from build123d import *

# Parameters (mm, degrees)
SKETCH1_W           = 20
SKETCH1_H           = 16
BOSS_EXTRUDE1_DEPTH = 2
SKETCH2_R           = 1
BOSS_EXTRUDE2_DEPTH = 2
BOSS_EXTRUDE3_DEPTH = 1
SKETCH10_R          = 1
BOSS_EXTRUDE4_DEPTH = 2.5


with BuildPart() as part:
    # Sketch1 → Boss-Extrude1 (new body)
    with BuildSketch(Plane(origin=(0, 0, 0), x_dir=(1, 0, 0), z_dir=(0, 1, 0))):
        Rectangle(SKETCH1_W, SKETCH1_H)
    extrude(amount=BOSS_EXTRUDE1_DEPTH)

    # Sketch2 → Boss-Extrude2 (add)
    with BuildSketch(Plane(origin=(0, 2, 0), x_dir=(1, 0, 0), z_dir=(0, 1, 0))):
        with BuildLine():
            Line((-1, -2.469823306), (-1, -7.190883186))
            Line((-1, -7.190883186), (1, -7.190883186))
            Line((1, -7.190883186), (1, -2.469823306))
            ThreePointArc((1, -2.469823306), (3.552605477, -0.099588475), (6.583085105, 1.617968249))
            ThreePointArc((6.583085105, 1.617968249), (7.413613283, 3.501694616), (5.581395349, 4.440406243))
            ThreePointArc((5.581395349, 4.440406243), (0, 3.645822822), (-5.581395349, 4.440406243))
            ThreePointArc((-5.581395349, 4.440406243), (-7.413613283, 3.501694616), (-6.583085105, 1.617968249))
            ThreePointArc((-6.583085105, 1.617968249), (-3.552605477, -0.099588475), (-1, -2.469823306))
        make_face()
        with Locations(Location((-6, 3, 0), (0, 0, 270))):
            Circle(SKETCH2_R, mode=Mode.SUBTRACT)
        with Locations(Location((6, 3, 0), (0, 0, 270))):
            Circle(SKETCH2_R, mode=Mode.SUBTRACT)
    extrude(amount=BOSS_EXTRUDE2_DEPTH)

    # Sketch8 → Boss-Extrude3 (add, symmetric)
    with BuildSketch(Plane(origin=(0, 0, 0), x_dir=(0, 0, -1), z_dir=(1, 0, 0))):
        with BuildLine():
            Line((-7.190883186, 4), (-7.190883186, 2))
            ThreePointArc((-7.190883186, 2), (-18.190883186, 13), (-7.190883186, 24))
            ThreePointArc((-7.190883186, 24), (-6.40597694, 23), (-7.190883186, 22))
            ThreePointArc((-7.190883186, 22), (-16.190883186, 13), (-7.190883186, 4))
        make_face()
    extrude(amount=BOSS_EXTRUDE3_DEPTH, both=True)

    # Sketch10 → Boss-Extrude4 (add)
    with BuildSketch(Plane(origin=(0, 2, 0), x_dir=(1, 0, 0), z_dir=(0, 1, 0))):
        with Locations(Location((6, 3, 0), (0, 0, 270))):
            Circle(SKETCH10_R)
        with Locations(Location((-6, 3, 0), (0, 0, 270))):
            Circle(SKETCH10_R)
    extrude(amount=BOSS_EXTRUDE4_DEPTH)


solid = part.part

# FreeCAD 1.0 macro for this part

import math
import FreeCAD as App
import Part
import Sketcher
from FreeCAD import Vector
Q = App.Units.Quantity

doc = App.newDocument("Part")
body = doc.addObject("PartDesign::Body", "Body")

sketch1 = doc.addObject("Sketcher::SketchObject", "Sketch")
body.addObject(sketch1)
sketch1.AttachmentSupport = (doc.XZ_Plane, [""])
sketch1.MapMode = "FlatFace"
sketch1.addGeometry([
    Part.LineSegment(Vector(-10, -8, 0), Vector(-10, 8, 0)),
    Part.LineSegment(Vector(-10, 8, 0), Vector(10, 8, 0)),
    Part.LineSegment(Vector(10, 8, 0), Vector(10, -8, 0)),
    Part.LineSegment(Vector(10, -8, 0), Vector(-10, -8, 0)),
], False)
sketch1.addConstraint([
    Sketcher.Constraint("Coincident", 0, 2, 1, 1),
    Sketcher.Constraint("Coincident", 1, 2, 2, 1),
    Sketcher.Constraint("Coincident", 2, 2, 3, 1),
    Sketcher.Constraint("Coincident", 3, 2, 0, 1),
    Sketcher.Constraint("Vertical", 0),
    Sketcher.Constraint("Horizontal", 1),
    Sketcher.Constraint("Vertical", 2),
    Sketcher.Constraint("Horizontal", 3),
    Sketcher.Constraint("Symmetric", 0, 2, 2, 2, -1, 1),
    Sketcher.Constraint("DistanceX", 1, 1, 1, 2, Q("20 mm")),
    Sketcher.Constraint("DistanceY", 0, 1, 0, 2, Q("16 mm")),
])
pad1 = doc.addObject("PartDesign::Pad", "Pad")
body.addObject(pad1)
pad1.Profile = sketch1
pad1.Length = 2
pad1.Reversed = True

sketch2 = doc.addObject("Sketcher::SketchObject", "Sketch001")
body.addObject(sketch2)
sketch2.AttachmentSupport = (doc.XZ_Plane, [""])
sketch2.MapMode = "FlatFace"
sketch2.AttachmentOffset = App.Placement(Vector(0, 0, -2), App.Rotation())
sketch2.addGeometry([
    Part.LineSegment(Vector(-1, 2.5, 0), Vector(-1, 7.2, 0)),
    Part.LineSegment(Vector(-1, 7.2, 0), Vector(1, 7.2, 0)),
    Part.LineSegment(Vector(1, 7.2, 0), Vector(1, 2.5, 0)),
    Part.ArcOfCircle(Part.Circle(Vector(12.4, 12.2, 0), Vector(0, 0, 1), 15), math.radians(-140), math.radians(-113)),
    Part.ArcOfCircle(Part.Circle(Vector(6, -3, 0), Vector(0, 0, 1), 1.5), math.radians(-106), math.radians(67)),
    Part.ArcOfCircle(Part.Circle(Vector(0, -23.6, 0), Vector(0, 0, 1), 20), math.radians(74), math.radians(106)),
    Part.ArcOfCircle(Part.Circle(Vector(-6, -3, 0), Vector(0, 0, 1), 1.5), math.radians(113), math.radians(286)),
    Part.ArcOfCircle(Part.Circle(Vector(-12.4, 12.2, 0), Vector(0, 0, 1), 15), math.radians(-67), math.radians(-40)),
    Part.Circle(Vector(-6, -3, 0), Vector(0, 0, 1), 1),
    Part.Circle(Vector(6, -3, 0), Vector(0, 0, 1), 1),
], False)
sketch2.addConstraint([
    Sketcher.Constraint("Coincident", 0, 2, 1, 1),
    Sketcher.Constraint("Coincident", 1, 2, 2, 1),
    Sketcher.Constraint("Coincident", 2, 2, 3, 1),
    Sketcher.Constraint("Tangent", 3, 2, 4, 2),
    Sketcher.Constraint("Tangent", 4, 1, 5, 1),
    Sketcher.Constraint("Tangent", 5, 2, 6, 2),
    Sketcher.Constraint("Tangent", 6, 1, 7, 1),
    Sketcher.Constraint("Coincident", 7, 2, 0, 1),
    Sketcher.Constraint("Vertical", 0),
    Sketcher.Constraint("Horizontal", 1),
    Sketcher.Constraint("Vertical", 2),
    Sketcher.Constraint("Coincident", 8, 3, 6, 3),
    Sketcher.Constraint("Coincident", 9, 3, 4, 3),
    Sketcher.Constraint("Equal", 4, 6),
    Sketcher.Constraint("Equal", 3, 7),
    Sketcher.Constraint("Equal", 8, 9),
    Sketcher.Constraint("Symmetric", 4, 3, 6, 3, -2),
    Sketcher.Constraint("Symmetric", 2, 2, 7, 2, -2),
    Sketcher.Constraint("Diameter", 8, Q("2 mm")),
    Sketcher.Constraint("Radius", 3, Q("15 mm")),
    Sketcher.Constraint("Radius", 5, Q("20 mm")),
    Sketcher.Constraint("Radius", 4, Q("1.5 mm")),
    Sketcher.Constraint("DistanceX", 1, 1, 1, 2, Q("2 mm")),
    Sketcher.Constraint("DistanceX", -1, 1, 4, 3, Q("6 mm")),
    Sketcher.Constraint("DistanceY", 4, 3, -1, 1, Q("3 mm")),
    Sketcher.Constraint("DistanceY", 0, 1, 0, 2, Q("4.72106 mm")),
    Sketcher.Constraint("DistanceY", -1, 1, 3, 3, Q("12.202349 mm")),
])
pad2 = doc.addObject("PartDesign::Pad", "Pad001")
body.addObject(pad2)
pad2.Profile = sketch2
pad2.Length = 2
pad2.Reversed = True

sketch3 = doc.addObject("Sketcher::SketchObject", "Sketch002")
body.addObject(sketch3)
sketch3.AttachmentSupport = (doc.YZ_Plane, [""])
sketch3.MapMode = "FlatFace"
sketch3.addGeometry([
    Part.LineSegment(Vector(2, 7.2, 0), Vector(4, 7.2, 0)),
    Part.ArcOfCircle(Part.Circle(Vector(13, 7.2, 0), Vector(0, 0, 1), 9), math.radians(0), math.radians(180)),
    Part.ArcOfCircle(Part.Circle(Vector(23, 7.4, 0), Vector(0, 0, 1), 1), math.radians(-166), math.radians(-14)),
    Part.ArcOfCircle(Part.Circle(Vector(13, 7.2, 0), Vector(0, 0, 1), 11), math.radians(0), math.radians(180)),
], False)
sketch3.addConstraint([
    Sketcher.Constraint("Coincident", 0, 2, 1, 2),
    Sketcher.Constraint("Coincident", 1, 1, 2, 1),
    Sketcher.Constraint("Coincident", 2, 2, 3, 1),
    Sketcher.Constraint("Coincident", 3, 2, 0, 1),
    Sketcher.Constraint("Horizontal", 0),
    Sketcher.Constraint("Coincident", 3, 3, 1, 3),
    Sketcher.Constraint("Horizontal", 3, 3, 0, 2),
    Sketcher.Constraint("Horizontal", 0, 2, 1, 1),
    Sketcher.Constraint("Horizontal", 1, 1, 2, 2),
    Sketcher.Constraint("Radius", 1, Q("9 mm")),
    Sketcher.Constraint("Radius", 3, Q("11 mm")),
    Sketcher.Constraint("DistanceX", -1, 1, 1, 3, Q("13 mm")),
    Sketcher.Constraint("Radius", 2, Q("1.029472 mm")),
    Sketcher.Constraint("DistanceY", -1, 1, 2, 3, Q("7.435449 mm")),
])
pad3 = doc.addObject("PartDesign::Pad", "Pad002")
body.addObject(pad3)
pad3.Profile = sketch3
pad3.Length = 2
pad3.Midplane = True

sketch4 = doc.addObject("Sketcher::SketchObject", "Sketch003")
body.addObject(sketch4)
sketch4.AttachmentSupport = (doc.XZ_Plane, [""])
sketch4.MapMode = "FlatFace"
sketch4.AttachmentOffset = App.Placement(Vector(0, 0, -2), App.Rotation())
sketch4.addGeometry([
    Part.Circle(Vector(6, -3, 0), Vector(0, 0, 1), 1),
    Part.Circle(Vector(-6, -3, 0), Vector(0, 0, 1), 1),
], False)
sketch4.addConstraint([
    Sketcher.Constraint("Equal", 0, 1),
    Sketcher.Constraint("Symmetric", 0, 3, 1, 3, -2),
    Sketcher.Constraint("Diameter", 0, Q("2 mm")),
    Sketcher.Constraint("DistanceX", -1, 1, 0, 3, Q("6 mm")),
    Sketcher.Constraint("DistanceY", 0, 3, -1, 1, Q("3 mm")),
])
pad4 = doc.addObject("PartDesign::Pad", "Pad003")
body.addObject(pad4)
pad4.Profile = sketch4
pad4.Length = 2.5
pad4.Reversed = True

doc.recompute()
